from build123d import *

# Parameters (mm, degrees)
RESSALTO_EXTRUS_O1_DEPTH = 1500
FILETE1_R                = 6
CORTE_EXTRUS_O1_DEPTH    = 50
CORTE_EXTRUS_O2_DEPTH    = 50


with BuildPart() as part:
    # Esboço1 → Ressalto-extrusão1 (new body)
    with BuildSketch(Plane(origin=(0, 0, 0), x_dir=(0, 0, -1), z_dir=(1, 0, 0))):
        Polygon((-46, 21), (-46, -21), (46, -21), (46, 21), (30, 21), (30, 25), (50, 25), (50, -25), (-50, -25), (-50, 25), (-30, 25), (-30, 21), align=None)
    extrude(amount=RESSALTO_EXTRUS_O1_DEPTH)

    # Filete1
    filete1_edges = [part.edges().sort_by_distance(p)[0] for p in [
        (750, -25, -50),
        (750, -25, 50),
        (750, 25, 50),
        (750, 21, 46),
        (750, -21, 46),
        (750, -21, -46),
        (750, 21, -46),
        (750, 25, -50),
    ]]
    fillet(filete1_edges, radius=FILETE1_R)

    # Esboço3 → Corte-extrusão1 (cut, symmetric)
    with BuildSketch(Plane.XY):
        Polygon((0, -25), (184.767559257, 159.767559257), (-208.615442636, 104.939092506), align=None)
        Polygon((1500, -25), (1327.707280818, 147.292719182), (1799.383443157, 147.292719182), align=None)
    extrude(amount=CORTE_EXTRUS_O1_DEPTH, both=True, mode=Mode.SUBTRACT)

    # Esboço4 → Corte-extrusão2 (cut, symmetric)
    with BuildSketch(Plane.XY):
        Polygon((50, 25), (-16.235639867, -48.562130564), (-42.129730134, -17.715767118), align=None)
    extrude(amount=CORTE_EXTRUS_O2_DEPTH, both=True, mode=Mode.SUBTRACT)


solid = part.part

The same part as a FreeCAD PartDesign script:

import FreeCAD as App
import Part
import Sketcher

V = App.Vector
Q = App.Units.Quantity


def edges_at(feature, points):
    """Names of the edges that pass closest to the given points."""
    edges = feature.Shape.Edges
    near = lambda p: min(range(len(edges)), key=lambda i: edges[i].distToShape(Part.Vertex(*p))[0])
    return sorted({f"Edge{near(p) + 1}" for p in points})


def add_polygon(sketch, points):
    """Adds a closed chain of lines whose ends are joined by coincident constraints."""
    first, n = sketch.GeometryCount, len(points)
    for a, b in zip(points, points[1:] + points[:1]):
        sketch.addGeometry(Part.LineSegment(App.Vector(*a, 0), App.Vector(*b, 0)), False)
    for i in range(n):
        sketch.addConstraint(Sketcher.Constraint("Coincident", first + i, 2, first + (i + 1) % n, 1))

doc = App.newDocument("Part")
body = doc.addObject("PartDesign::Body", "Body")

# Sketch on YZ plane
sketch1 = body.newObject("Sketcher::SketchObject", "Sketch")
sketch1.AttachmentSupport = (doc.getObject("YZ_Plane"), [""])
sketch1.MapMode = "FlatFace"
add_polygon(sketch1, [(-21, 46), (21, 46), (21, 30), (25, 30), (25, 50), (-25, 50), (-25, -50), (25, -50), (25, -30), (21, -30), (21, -46), (-21, -46)])  # lines 0-11
sketch1.addConstraint(Sketcher.Constraint("Horizontal", 0))
sketch1.addConstraint(Sketcher.Constraint("Vertical", 1))
sketch1.addConstraint(Sketcher.Constraint("Horizontal", 2))
sketch1.addConstraint(Sketcher.Constraint("Vertical", 3))
sketch1.addConstraint(Sketcher.Constraint("Horizontal", 4))
sketch1.addConstraint(Sketcher.Constraint("Vertical", 5))
sketch1.addConstraint(Sketcher.Constraint("Horizontal", 6))
sketch1.addConstraint(Sketcher.Constraint("Vertical", 7))
sketch1.addConstraint(Sketcher.Constraint("Horizontal", 8))
sketch1.addConstraint(Sketcher.Constraint("Vertical", 9))
sketch1.addConstraint(Sketcher.Constraint("Horizontal", 10))
sketch1.addConstraint(Sketcher.Constraint("Vertical", 11))
sketch1.addConstraint(Sketcher.Constraint("Symmetric", 3, 2, 5, 2, -1, 1))
sketch1.addConstraint(Sketcher.Constraint("Symmetric", 0, 2, 10, 2, -1, 1))
sketch1.addConstraint(Sketcher.Constraint("Symmetric", 2, 2, 7, 2, -1))
sketch1.addConstraint(Sketcher.Constraint("Vertical", 1, 2, 8, 2))
sketch1.addConstraint(Sketcher.Constraint("DistanceX", 0, 1, 0, 2, Q("42 mm")))
sketch1.addConstraint(Sketcher.Constraint("DistanceX", 2, 1, 2, 2, Q("4 mm")))
sketch1.addConstraint(Sketcher.Constraint("DistanceY", 1, 2, 1, 1, Q("16 mm")))
sketch1.addConstraint(Sketcher.Constraint("DistanceY", 3, 1, 3, 2, Q("20 mm")))
sketch1.addConstraint(Sketcher.Constraint("DistanceY", 5, 2, 5, 1, Q("100 mm")))
pad1 = body.newObject("PartDesign::Pad", "Pad")
pad1.Profile = sketch1
pad1.Length = 1500
doc.recompute()

fillet = body.newObject("PartDesign::Fillet", "Fillet")
fillet.Base = (pad1, edges_at(pad1, [
    (750, -25, -50),
    (750, -25, 50),
    (750, 25, 50),
    (750, 21, 46),
    (750, -21, 46),
    (750, -21, -46),
    (750, 21, -46),
    (750, 25, -50),
]))
fillet.Radius = 6

# Sketch on XY plane
sketch2 = body.newObject("Sketcher::SketchObject", "Sketch001")
sketch2.AttachmentSupport = (doc.getObject("XY_Plane"), [""])
sketch2.MapMode = "FlatFace"
add_polygon(sketch2, [(0, -25), (185, 160), (-209, 105)])  # lines 0-2
add_polygon(sketch2, [(1328, 147), (1500, -25), (1799, 147)])  # lines 3-5
sketch2.addConstraint(Sketcher.Constraint("Horizontal", 5))
sketch2.addConstraint(Sketcher.Constraint("PointOnObject", 2, 2, -2))
sketch2.addConstraint(Sketcher.Constraint("Perpendicular", 0, 3))
sketch2.addConstraint(Sketcher.Constraint("Horizontal", 2, 2, 3, 2))
sketch2.addConstraint(Sketcher.Constraint("Angle", 0, Q("45 deg")))
sketch2.addConstraint(Sketcher.Constraint("DistanceY", 2, 2, -1, 1, Q("25 mm")))
sketch2.addConstraint(Sketcher.Constraint("DistanceX", -1, 1, 3, 2, Q("1500 mm")))
sketch2.addConstraint(Sketcher.Constraint("DistanceX", 1, 2, 0, 2, Q("393.383002 mm")))
sketch2.addConstraint(Sketcher.Constraint("Distance", 3, Q("243.6587 mm")))
sketch2.addConstraint(Sketcher.Constraint("Distance", 0, Q("261.300788 mm")))
sketch2.addConstraint(Sketcher.Constraint("DistanceX", 5, 2, 5, 1, Q("471.676162 mm")))
sketch2.addConstraint(Sketcher.Constraint("Distance", 1, Q("397.185532 mm")))
pocket1 = body.newObject("PartDesign::Pocket", "Pocket")
pocket1.Profile = sketch2
pocket1.Length = 100
pocket1.Midplane = True

# Sketch on XY plane
sketch3 = body.newObject("Sketcher::SketchObject", "Sketch002")
sketch3.AttachmentSupport = (doc.getObject("XY_Plane"), [""])
sketch3.MapMode = "FlatFace"
add_polygon(sketch3, [(-16, -49), (50, 25), (-42, -18)])  # lines 0-2
sketch3.addConstraint(Sketcher.Constraint("Angle", 0, Q("48 deg")))
sketch3.addConstraint(Sketcher.Constraint("DistanceX", -1, 1, 0, 2, Q("50 mm")))
sketch3.addConstraint(Sketcher.Constraint("DistanceY", -1, 1, 0, 2, Q("25 mm")))
sketch3.addConstraint(Sketcher.Constraint("Distance", 0, Q("98.987611 mm")))
sketch3.addConstraint(Sketcher.Constraint("DistanceX", 1, 2, -1, 1, Q("42.12973 mm")))
sketch3.addConstraint(Sketcher.Constraint("Distance", 1, Q("101.550598 mm")))
pocket2 = body.newObject("PartDesign::Pocket", "Pocket001")
pocket2.Profile = sketch3
pocket2.Length = 100
pocket2.Midplane = True

doc.recompute()
